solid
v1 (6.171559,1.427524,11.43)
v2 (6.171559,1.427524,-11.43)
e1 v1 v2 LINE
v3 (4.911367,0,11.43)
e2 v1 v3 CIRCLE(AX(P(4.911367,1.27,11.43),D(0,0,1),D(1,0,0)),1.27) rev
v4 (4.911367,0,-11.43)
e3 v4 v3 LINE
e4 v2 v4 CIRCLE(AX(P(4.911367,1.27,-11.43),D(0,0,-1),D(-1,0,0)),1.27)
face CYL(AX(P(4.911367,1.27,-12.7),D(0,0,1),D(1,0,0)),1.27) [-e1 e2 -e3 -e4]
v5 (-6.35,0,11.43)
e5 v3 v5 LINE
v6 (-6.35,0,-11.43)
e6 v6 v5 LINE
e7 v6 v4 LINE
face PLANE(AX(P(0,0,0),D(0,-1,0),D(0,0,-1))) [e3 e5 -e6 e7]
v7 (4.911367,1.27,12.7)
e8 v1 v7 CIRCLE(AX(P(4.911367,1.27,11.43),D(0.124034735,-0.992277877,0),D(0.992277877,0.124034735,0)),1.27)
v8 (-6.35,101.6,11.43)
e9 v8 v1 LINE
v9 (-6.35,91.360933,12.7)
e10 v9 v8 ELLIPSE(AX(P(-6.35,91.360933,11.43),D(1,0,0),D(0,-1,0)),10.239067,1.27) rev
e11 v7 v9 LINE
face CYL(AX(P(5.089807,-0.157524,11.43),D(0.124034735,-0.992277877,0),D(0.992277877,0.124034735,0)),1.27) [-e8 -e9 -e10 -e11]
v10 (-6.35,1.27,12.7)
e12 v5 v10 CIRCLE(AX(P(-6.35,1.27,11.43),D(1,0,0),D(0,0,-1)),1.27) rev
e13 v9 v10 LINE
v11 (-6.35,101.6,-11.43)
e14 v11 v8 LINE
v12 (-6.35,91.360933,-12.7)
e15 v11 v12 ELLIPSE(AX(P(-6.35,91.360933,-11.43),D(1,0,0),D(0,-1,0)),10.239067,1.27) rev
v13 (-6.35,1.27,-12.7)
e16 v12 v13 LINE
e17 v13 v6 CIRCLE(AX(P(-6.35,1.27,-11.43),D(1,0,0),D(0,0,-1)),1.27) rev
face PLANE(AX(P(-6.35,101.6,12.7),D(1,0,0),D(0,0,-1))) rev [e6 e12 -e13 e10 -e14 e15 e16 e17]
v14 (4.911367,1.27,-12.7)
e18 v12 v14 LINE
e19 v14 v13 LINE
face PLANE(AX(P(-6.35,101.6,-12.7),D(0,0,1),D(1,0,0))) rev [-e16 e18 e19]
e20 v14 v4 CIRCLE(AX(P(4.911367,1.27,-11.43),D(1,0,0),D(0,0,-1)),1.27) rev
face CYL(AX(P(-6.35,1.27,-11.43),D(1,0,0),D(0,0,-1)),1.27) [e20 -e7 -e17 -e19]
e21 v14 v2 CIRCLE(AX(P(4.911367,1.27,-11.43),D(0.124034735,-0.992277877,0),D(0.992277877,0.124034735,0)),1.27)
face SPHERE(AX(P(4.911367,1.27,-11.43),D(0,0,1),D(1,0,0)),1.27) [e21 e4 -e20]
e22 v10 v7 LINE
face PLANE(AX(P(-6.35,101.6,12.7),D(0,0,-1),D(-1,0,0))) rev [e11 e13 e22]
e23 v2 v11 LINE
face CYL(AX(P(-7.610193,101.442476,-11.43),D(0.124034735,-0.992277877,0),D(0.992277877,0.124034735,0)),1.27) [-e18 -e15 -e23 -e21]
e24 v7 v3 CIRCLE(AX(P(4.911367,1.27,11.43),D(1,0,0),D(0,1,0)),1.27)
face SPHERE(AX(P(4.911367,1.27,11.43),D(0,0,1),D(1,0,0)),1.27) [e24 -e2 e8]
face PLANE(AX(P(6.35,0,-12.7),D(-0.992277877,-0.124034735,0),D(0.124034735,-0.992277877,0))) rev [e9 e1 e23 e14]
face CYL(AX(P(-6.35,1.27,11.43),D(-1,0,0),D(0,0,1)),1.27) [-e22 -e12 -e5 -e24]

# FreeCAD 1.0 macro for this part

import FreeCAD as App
import Part
import Sketcher
from FreeCAD import Vector
Q = App.Units.Quantity


def edges_at(feature, points):
    """Names of the edges that pass closest to the given points."""
    edges = feature.Shape.Edges
    near = lambda p: min(range(len(edges)), key=lambda i: edges[i].distToShape(Part.Vertex(*p))[0])
    return sorted({f"Edge{near(p) + 1}" for p in points})

doc = App.newDocument("Part")
body = doc.addObject("PartDesign::Body", "Body")

# Sketch on XZ plane
sketch1 = body.newObject("Sketcher::SketchObject", "Sketch")
sketch1.AttachmentSupport = (doc.getObject("XZ_Plane"), [""])
sketch1.MapMode = "FlatFace"
sketch1.addGeometry([
    Part.LineSegment(Vector(-6, -13, 0), Vector(-6, 13, 0)),
    Part.LineSegment(Vector(-6, 13, 0), Vector(6, 13, 0)),
    Part.LineSegment(Vector(6, 13, 0), Vector(6, -13, 0)),
    Part.LineSegment(Vector(6, -13, 0), Vector(-6, -13, 0)),
], False)
sketch1.addConstraint([
    Sketcher.Constraint("Coincident", 0, 2, 1, 1),
    Sketcher.Constraint("Coincident", 1, 2, 2, 1),
    Sketcher.Constraint("Coincident", 2, 2, 3, 1),
    Sketcher.Constraint("Coincident", 3, 2, 0, 1),
    Sketcher.Constraint("Vertical", 0),
    Sketcher.Constraint("Horizontal", 1),
    Sketcher.Constraint("Vertical", 2),
    Sketcher.Constraint("Horizontal", 3),
    Sketcher.Constraint("Symmetric", 0, 2, 2, 2, -1, 1),
    Sketcher.Constraint("DistanceY", 0, 1, 0, 2, Q("1 in")),
    Sketcher.Constraint("DistanceX", 1, 1, 1, 2, Q("0.5 in")),
])
pad1 = body.newObject("PartDesign::Pad", "Pad")
pad1.Profile = sketch1
pad1.Length = Q("4 in")
pad1.Reversed = True

# Sketch on XY plane
sketch2 = body.newObject("Sketcher::SketchObject", "Sketch001")
sketch2.AttachmentSupport = (doc.getObject("XY_Plane"), [""])
sketch2.MapMode = "FlatFace"
sketch2.AttachmentOffset = App.Placement(Vector(0, 0, 0.5 * 25.4), App.Rotation())
sketch2.addGeometry([
    Part.LineSegment(Vector(-6, 102, 0), Vector(6, 0, 0)),
    Part.LineSegment(Vector(6, 0, 0), Vector(6, 102, 0)),
    Part.LineSegment(Vector(6, 102, 0), Vector(-6, 102, 0)),
], False)
sketch2.addConstraint([
    Sketcher.Constraint("Coincident", 0, 2, 1, 1),
    Sketcher.Constraint("Coincident", 1, 2, 2, 1),
    Sketcher.Constraint("Coincident", 2, 2, 0, 1),
    Sketcher.Constraint("Vertical", 1),
    Sketcher.Constraint("Horizontal", 2),
    Sketcher.Constraint("PointOnObject", 0, 2, -1),
    Sketcher.Constraint("DistanceY", 1, 1, 1, 2, Q("4 in")),
    Sketcher.Constraint("DistanceX", 2, 2, 2, 1, Q("0.5 in")),
    Sketcher.Constraint("DistanceX", -1, 1, 0, 2, Q("0.25 in")),
])
pocket1 = body.newObject("PartDesign::Pocket", "Pocket")
pocket1.Profile = sketch2
pocket1.Type = "ThroughAll"
doc.recompute()

fillet = body.newObject("PartDesign::Fillet", "Fillet")
fillet.Base = (pocket1, edges_at(pocket1, [
    (0, 50.8, -12.7),
    (0, 50.8, 12.7),
    (0, 0, 12.7),
    (0, 0, -12.7),
    (6.35, 0, 0),
]))
fillet.Radius = Q("0.05 in")

doc.recompute()
